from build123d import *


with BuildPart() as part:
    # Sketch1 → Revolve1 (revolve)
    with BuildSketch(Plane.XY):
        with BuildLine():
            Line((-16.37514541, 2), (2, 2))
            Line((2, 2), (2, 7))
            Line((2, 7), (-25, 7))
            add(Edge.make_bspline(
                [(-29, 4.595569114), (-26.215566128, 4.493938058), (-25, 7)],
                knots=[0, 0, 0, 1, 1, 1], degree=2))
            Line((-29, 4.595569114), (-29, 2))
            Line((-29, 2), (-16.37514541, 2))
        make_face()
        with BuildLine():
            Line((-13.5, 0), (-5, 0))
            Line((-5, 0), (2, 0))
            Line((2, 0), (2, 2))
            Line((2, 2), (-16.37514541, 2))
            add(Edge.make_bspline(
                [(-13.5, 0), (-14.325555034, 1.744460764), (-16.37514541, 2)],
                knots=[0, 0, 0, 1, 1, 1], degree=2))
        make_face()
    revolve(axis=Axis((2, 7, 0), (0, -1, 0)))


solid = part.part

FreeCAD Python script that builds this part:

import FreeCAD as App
import Part
import Sketcher

V = App.Vector

doc = App.newDocument("Part")
body = doc.addObject("PartDesign::Body", "Body")

# Sketch on XY plane
sketch1 = body.newObject("Sketcher::SketchObject", "Sketch")
sketch1.AttachmentSupport = (doc.getObject("XY_Plane"), [""])
sketch1.MapMode = "FlatFace"
sketch1.addGeometry([
    Part.LineSegment(V(2, 7, 0), V(-25, 7, 0)),  # 0
    Part.BSplineCurve([V(-29, 4.595569, 0), V(-26.215566, 4.493938, 0), V(-25, 7, 0)], [3, 3], [0, 1], False, 2, [1, 1, 1], False),  # 1
    Part.LineSegment(V(-29, 4.595569, 0), V(-29, 2, 0)),  # 2
    Part.LineSegment(V(-29, 2, 0), V(-16.375145, 2, 0)),  # 3
    Part.BSplineCurve([V(-13.5, 0, 0), V(-14.325555, 1.744461, 0), V(-16.375145, 2, 0)], [3, 3], [0, 1], False, 2, [1, 1, 1], False),  # 4
    Part.LineSegment(V(-13.5, 0, 0), V(2, 0, 0)),  # 5
    Part.LineSegment(V(2, 0, 0), V(2, 7, 0)),  # 6
], False)
sketch1.addGeometry(Part.LineSegment(V(2, 7, 0), V(2, 0, 0)), True)  # axis
sketch1.addConstraint([
    Sketcher.Constraint("Block", 1),
    Sketcher.Constraint("Block", 4),
    Sketcher.Constraint("Coincident", 0, 2, 1, 2),
    Sketcher.Constraint("Coincident", 1, 1, 2, 1),
    Sketcher.Constraint("Coincident", 2, 2, 3, 1),
    Sketcher.Constraint("Coincident", 3, 2, 4, 2),
    Sketcher.Constraint("Coincident", 4, 1, 5, 1),
    Sketcher.Constraint("Coincident", 5, 2, 6, 1),
    Sketcher.Constraint("Coincident", 6, 2, 0, 1),
    Sketcher.Constraint("Horizontal", 0),
    Sketcher.Constraint("Vertical", 2),
    Sketcher.Constraint("Horizontal", 3),
    Sketcher.Constraint("Horizontal", 5),
    Sketcher.Constraint("Vertical", 6),
    Sketcher.Constraint("Vertical", 7),
    Sketcher.Constraint("Coincident", 7, 1, 6, 2),
    Sketcher.Constraint("PointOnObject", 7, 2, -1),
    Sketcher.Constraint("DistanceX", 0, 2, 0, 1, 27.0),
])
revolution = body.newObject("PartDesign::Revolution", "Revolution")
revolution.Profile = sketch1
revolution.ReferenceAxis = (sketch1, ["Axis0"])
revolution.Angle = 360

doc.recompute()
